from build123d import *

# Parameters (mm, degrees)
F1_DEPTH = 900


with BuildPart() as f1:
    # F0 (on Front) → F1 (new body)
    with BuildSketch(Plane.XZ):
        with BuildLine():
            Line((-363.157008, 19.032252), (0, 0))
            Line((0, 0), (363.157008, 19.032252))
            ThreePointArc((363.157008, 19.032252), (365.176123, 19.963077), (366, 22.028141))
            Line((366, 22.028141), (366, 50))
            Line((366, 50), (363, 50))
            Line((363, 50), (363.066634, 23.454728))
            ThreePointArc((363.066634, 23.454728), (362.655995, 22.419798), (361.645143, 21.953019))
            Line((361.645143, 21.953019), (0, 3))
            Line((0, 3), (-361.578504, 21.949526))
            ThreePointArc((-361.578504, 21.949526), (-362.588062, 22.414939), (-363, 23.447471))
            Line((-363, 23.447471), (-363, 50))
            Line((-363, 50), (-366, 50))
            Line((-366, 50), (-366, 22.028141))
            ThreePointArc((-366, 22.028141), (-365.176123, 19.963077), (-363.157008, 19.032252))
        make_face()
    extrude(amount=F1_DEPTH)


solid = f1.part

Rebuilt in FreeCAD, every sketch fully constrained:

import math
import FreeCAD as App
import Part
import Sketcher
from FreeCAD import Vector
Q = App.Units.Quantity

doc = App.newDocument("Part")
body = doc.addObject("PartDesign::Body", "Body")

sketch1 = body.newObject("Sketcher::SketchObject", "Sketch")
sketch1.AttachmentSupport = (doc.getObject("XZ_Plane"), [""])
sketch1.MapMode = "FlatFace"
sketch1.addGeometry(Part.LineSegment(Vector(-363.157008, 19.032252, 0), Vector(0, 0, 0)), False)
sketch1.addGeometry(Part.LineSegment(Vector(0, 0, 0), Vector(363.157008, 19.032252, 0)), False)
sketch1.addGeometry(Part.ArcOfCircle(Part.Circle(Vector(363, 22.028141, 0), Vector(0, 0, 1), 3), math.radians(-86.999989), math.radians(-0.000001)), False)
sketch1.addGeometry(Part.LineSegment(Vector(366, 22.028141, 0), Vector(366, 50, 0)), False)
sketch1.addGeometry(Part.LineSegment(Vector(366, 50, 0), Vector(363, 50, 0)), False)
sketch1.addGeometry(Part.LineSegment(Vector(363, 50, 0), Vector(363.066634, 23.454728, 0)), False)
sketch1.addGeometry(Part.ArcOfCircle(Part.Circle(Vector(361.566638, 23.450964, 0), Vector(0, 0, 1), 1.500001), math.radians(-86.999953), math.radians(0.143768)), False)
sketch1.addGeometry(Part.LineSegment(Vector(361.645143, 21.953019, 0), Vector(0, 3, 0)), False)
sketch1.addGeometry(Part.LineSegment(Vector(0, 3, 0), Vector(-361.578504, 21.949526, 0)), False)
sketch1.addGeometry(Part.ArcOfCircle(Part.Circle(Vector(-361.5, 23.44747, 0), Vector(0, 0, 1), 1.5), math.radians(179.99998), math.radians(266.999991)), False)
sketch1.addGeometry(Part.LineSegment(Vector(-363, 23.447471, 0), Vector(-363, 50, 0)), False)
sketch1.addGeometry(Part.LineSegment(Vector(-363, 50, 0), Vector(-366, 50, 0)), False)
sketch1.addGeometry(Part.LineSegment(Vector(-366, 50, 0), Vector(-366, 22.028141, 0)), False)
sketch1.addGeometry(Part.ArcOfCircle(Part.Circle(Vector(-363, 22.028141, 0), Vector(0, 0, 1), 3), math.radians(-179.999999), math.radians(-93.000011)), False)
sketch1.addConstraint(Sketcher.Constraint("Coincident", 0, 2, 1, 1))
sketch1.addConstraint(Sketcher.Constraint("Tangent", 1, 2, 2, 1))
sketch1.addConstraint(Sketcher.Constraint("Tangent", 2, 2, 3, 1))
sketch1.addConstraint(Sketcher.Constraint("Coincident", 3, 2, 4, 1))
sketch1.addConstraint(Sketcher.Constraint("Coincident", 4, 2, 5, 1))
sketch1.addConstraint(Sketcher.Constraint("Tangent", 5, 2, 6, 2))
sketch1.addConstraint(Sketcher.Constraint("Tangent", 6, 1, 7, 1))
sketch1.addConstraint(Sketcher.Constraint("Coincident", 7, 2, 8, 1))
sketch1.addConstraint(Sketcher.Constraint("Tangent", 8, 2, 9, 2))
sketch1.addConstraint(Sketcher.Constraint("Tangent", 9, 1, 10, 1))
sketch1.addConstraint(Sketcher.Constraint("Coincident", 10, 2, 11, 1))
sketch1.addConstraint(Sketcher.Constraint("Coincident", 11, 2, 12, 1))
sketch1.addConstraint(Sketcher.Constraint("Tangent", 12, 2, 13, 1))
sketch1.addConstraint(Sketcher.Constraint("Tangent", 13, 2, 0, 1))
sketch1.addConstraint(Sketcher.Constraint("Vertical", 3))
sketch1.addConstraint(Sketcher.Constraint("Horizontal", 4))
sketch1.addConstraint(Sketcher.Constraint("Vertical", 10))
sketch1.addConstraint(Sketcher.Constraint("Horizontal", 11))
sketch1.addConstraint(Sketcher.Constraint("Vertical", 12))
sketch1.addConstraint(Sketcher.Constraint("Coincident", 0, 2, -1, 1))
sketch1.addConstraint(Sketcher.Constraint("Equal", 6, 9))
sketch1.addConstraint(Sketcher.Constraint("Equal", 2, 13))
sketch1.addConstraint(Sketcher.Constraint("Symmetric", 2, 3, 13, 3, -2))
sketch1.addConstraint(Sketcher.Constraint("Symmetric", 4, 2, 10, 2, -2))
sketch1.addConstraint(Sketcher.Constraint("PointOnObject", 7, 2, -2))
sketch1.addConstraint(Sketcher.Constraint("Parallel", 1, 7))
sketch1.addConstraint(Sketcher.Constraint("Parallel", 0, 8))
sketch1.addConstraint(Sketcher.Constraint("Vertical", 2, 3, 4, 2))
sketch1.addConstraint(Sketcher.Constraint("Radius", 2, 3.0))
sketch1.addConstraint(Sketcher.Constraint("Radius", 6, 1.500001))
sketch1.addConstraint(Sketcher.Constraint("Angle", 0, Q("-3 deg")))
sketch1.addConstraint(Sketcher.Constraint("DistanceX", -1, 1, 2, 3, 363.0))
sketch1.addConstraint(Sketcher.Constraint("DistanceY", -1, 1, 3, 2, 50.0))
sketch1.addConstraint(Sketcher.Constraint("DistanceY", -1, 1, 7, 2, 3.0))
sketch1.addConstraint(Sketcher.Constraint("DistanceY", -1, 1, 6, 1, 21.953019))
pad1 = body.newObject("PartDesign::Pad", "Pad")
pad1.Profile = sketch1
pad1.Length = 900

doc.recompute()
